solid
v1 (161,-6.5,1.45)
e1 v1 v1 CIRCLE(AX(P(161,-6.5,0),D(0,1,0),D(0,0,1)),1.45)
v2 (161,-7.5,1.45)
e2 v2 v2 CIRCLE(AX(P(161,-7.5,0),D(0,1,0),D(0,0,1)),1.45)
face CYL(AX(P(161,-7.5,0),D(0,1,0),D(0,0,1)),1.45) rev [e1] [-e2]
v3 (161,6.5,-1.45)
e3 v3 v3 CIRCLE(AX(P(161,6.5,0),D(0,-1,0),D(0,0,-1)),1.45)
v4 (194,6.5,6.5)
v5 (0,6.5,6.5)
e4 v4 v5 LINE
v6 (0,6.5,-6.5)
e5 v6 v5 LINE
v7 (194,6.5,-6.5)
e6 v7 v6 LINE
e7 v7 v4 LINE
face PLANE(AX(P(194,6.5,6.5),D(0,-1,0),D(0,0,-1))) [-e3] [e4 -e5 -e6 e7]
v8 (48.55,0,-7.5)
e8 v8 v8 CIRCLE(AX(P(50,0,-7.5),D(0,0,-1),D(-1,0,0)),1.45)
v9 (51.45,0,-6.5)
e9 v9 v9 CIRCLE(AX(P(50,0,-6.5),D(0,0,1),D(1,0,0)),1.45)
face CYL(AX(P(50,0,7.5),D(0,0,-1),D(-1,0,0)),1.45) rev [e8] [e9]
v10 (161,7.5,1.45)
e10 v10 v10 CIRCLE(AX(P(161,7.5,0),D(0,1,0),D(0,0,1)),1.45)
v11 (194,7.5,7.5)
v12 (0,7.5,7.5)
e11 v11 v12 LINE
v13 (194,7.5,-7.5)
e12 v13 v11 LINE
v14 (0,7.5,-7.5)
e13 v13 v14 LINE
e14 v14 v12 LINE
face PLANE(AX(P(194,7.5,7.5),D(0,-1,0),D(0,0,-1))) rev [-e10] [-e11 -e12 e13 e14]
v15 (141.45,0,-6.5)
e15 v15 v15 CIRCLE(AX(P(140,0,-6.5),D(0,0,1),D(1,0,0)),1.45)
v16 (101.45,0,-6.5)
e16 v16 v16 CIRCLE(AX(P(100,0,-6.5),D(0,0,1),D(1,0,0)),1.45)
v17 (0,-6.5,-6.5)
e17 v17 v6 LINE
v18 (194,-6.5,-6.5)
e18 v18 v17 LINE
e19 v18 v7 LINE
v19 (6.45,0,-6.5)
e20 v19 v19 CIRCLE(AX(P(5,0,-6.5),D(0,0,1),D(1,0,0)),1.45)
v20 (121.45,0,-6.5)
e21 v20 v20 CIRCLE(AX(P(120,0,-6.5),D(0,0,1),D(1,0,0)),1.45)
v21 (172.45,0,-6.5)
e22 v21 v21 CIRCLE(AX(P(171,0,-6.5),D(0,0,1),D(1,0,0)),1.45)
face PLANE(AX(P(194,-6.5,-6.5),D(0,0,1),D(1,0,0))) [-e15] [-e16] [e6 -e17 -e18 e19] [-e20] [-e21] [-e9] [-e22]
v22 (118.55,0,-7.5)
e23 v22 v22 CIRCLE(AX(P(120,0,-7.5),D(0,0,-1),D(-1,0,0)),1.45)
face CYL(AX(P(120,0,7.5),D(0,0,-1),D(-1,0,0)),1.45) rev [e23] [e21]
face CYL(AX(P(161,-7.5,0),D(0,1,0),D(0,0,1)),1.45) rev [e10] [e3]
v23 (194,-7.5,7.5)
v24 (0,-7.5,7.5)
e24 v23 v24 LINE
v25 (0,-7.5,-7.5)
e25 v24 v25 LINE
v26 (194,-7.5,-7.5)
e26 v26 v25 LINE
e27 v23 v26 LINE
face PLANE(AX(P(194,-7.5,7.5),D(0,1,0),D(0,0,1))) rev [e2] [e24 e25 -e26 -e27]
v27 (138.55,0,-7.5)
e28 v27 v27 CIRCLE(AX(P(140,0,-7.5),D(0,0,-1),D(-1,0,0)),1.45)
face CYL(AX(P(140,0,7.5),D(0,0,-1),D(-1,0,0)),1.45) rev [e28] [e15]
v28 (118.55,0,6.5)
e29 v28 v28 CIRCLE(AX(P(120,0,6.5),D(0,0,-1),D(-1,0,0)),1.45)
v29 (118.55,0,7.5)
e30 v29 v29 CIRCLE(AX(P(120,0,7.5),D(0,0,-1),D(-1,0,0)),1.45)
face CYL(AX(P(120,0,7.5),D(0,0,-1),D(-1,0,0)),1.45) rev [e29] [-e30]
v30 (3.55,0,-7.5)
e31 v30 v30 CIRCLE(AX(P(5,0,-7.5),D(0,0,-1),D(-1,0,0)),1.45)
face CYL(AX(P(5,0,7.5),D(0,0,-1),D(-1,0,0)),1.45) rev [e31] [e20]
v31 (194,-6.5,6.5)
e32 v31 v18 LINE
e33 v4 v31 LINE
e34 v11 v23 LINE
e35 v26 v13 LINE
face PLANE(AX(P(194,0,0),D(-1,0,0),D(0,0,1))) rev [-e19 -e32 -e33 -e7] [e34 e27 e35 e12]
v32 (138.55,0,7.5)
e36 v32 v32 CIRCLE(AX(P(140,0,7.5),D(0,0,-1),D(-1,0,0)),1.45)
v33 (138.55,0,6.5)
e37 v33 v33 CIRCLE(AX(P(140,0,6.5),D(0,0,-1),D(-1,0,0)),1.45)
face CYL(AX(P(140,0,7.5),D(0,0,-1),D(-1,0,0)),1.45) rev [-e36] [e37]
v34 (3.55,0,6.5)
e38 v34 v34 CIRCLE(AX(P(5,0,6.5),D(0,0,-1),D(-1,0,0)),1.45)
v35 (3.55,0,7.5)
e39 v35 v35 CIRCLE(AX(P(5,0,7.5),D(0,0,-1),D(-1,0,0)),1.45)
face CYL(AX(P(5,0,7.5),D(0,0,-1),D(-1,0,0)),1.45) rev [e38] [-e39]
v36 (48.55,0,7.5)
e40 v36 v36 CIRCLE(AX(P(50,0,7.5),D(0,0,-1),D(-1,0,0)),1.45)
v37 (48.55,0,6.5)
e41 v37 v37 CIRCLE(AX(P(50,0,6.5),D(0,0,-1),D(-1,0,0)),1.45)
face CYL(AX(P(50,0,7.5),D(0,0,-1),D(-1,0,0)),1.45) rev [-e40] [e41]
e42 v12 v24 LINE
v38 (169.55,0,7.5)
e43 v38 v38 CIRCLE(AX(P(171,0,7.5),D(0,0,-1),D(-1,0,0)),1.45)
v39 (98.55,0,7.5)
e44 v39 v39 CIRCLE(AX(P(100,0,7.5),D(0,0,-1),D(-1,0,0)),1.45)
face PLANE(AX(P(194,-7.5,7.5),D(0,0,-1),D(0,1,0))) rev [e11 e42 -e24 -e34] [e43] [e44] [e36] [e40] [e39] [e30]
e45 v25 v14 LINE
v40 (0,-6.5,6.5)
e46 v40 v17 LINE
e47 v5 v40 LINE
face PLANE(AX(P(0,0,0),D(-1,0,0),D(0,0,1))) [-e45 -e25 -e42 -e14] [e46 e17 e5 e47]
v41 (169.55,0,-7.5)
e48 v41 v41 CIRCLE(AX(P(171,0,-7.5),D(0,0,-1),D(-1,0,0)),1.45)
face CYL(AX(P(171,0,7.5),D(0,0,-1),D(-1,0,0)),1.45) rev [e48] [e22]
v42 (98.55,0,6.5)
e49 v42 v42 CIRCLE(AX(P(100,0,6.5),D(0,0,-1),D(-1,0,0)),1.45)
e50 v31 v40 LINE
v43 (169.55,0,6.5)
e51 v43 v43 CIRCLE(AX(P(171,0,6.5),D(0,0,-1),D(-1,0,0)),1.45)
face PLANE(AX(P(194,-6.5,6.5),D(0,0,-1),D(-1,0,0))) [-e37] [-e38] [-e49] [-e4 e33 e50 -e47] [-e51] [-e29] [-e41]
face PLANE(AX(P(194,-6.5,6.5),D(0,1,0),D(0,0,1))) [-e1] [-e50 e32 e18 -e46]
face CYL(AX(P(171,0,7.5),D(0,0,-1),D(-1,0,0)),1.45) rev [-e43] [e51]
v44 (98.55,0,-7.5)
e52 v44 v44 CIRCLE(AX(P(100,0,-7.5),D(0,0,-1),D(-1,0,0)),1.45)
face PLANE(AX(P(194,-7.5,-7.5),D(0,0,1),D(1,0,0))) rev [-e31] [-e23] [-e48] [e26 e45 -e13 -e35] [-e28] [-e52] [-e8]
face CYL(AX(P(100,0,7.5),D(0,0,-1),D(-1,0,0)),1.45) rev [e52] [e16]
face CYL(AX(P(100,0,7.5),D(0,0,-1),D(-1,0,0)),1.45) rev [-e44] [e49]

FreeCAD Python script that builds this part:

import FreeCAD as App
import Part
import Sketcher

V = App.Vector
Q = App.Units.Quantity

doc = App.newDocument("Part")
body = doc.addObject("PartDesign::Body", "Body")

# Sketch on YZ plane
sketch1 = body.newObject("Sketcher::SketchObject", "Sketch")
sketch1.AttachmentSupport = (doc.getObject("YZ_Plane"), [""])
sketch1.MapMode = "FlatFace"
sketch1.addGeometry(Part.LineSegment(V(8, 8, 0), V(-8, 8, 0)), False)
sketch1.addGeometry(Part.LineSegment(V(-8, 8, 0), V(-8, -8, 0)), False)
sketch1.addGeometry(Part.LineSegment(V(-8, -8, 0), V(8, -8, 0)), False)
sketch1.addGeometry(Part.LineSegment(V(8, -8, 0), V(8, 8, 0)), False)
sketch1.addGeometry(Part.LineSegment(V(-6, -6, 0), V(-6, 6, 0)), False)
sketch1.addGeometry(Part.LineSegment(V(-6, 6, 0), V(6, 6, 0)), False)
sketch1.addGeometry(Part.LineSegment(V(6, 6, 0), V(6, -6, 0)), False)
sketch1.addGeometry(Part.LineSegment(V(6, -6, 0), V(-6, -6, 0)), False)
sketch1.addConstraint(Sketcher.Constraint("Coincident", 0, 2, 1, 1))
sketch1.addConstraint(Sketcher.Constraint("Coincident", 1, 2, 2, 1))
sketch1.addConstraint(Sketcher.Constraint("Coincident", 2, 2, 3, 1))
sketch1.addConstraint(Sketcher.Constraint("Coincident", 3, 2, 0, 1))
sketch1.addConstraint(Sketcher.Constraint("Coincident", 4, 2, 5, 1))
sketch1.addConstraint(Sketcher.Constraint("Coincident", 5, 2, 6, 1))
sketch1.addConstraint(Sketcher.Constraint("Coincident", 6, 2, 7, 1))
sketch1.addConstraint(Sketcher.Constraint("Coincident", 7, 2, 4, 1))
sketch1.addConstraint(Sketcher.Constraint("Horizontal", 0))
sketch1.addConstraint(Sketcher.Constraint("Vertical", 1))
sketch1.addConstraint(Sketcher.Constraint("Horizontal", 2))
sketch1.addConstraint(Sketcher.Constraint("Vertical", 3))
sketch1.addConstraint(Sketcher.Constraint("Vertical", 4))
sketch1.addConstraint(Sketcher.Constraint("Horizontal", 5))
sketch1.addConstraint(Sketcher.Constraint("Vertical", 6))
sketch1.addConstraint(Sketcher.Constraint("Horizontal", 7))
sketch1.addConstraint(Sketcher.Constraint("Symmetric", 0, 2, 2, 2, -1, 1))
sketch1.addConstraint(Sketcher.Constraint("Symmetric", 4, 2, 6, 2, -1, 1))
sketch1.addConstraint(Sketcher.Constraint("Equal", 2, 1))
sketch1.addConstraint(Sketcher.Constraint("Equal", 7, 4))
sketch1.addConstraint(Sketcher.Constraint("DistanceX", 0, 2, 0, 1, Q("15 mm")))
sketch1.addConstraint(Sketcher.Constraint("DistanceX", 5, 1, 5, 2, Q("13 mm")))
pad1 = body.newObject("PartDesign::Pad", "Pad")
pad1.Profile = sketch1
pad1.Length = 194

# Sketch on XY plane
sketch2 = body.newObject("Sketcher::SketchObject", "Sketch001")
sketch2.AttachmentSupport = (doc.getObject("XY_Plane"), [""])
sketch2.MapMode = "FlatFace"
sketch2.AttachmentOffset = App.Placement(V(0, 0, -7.5), App.Rotation())
sketch2.addGeometry(Part.Circle(V(5, 0, 0), V(0, 0, 1), 1.4), False)
sketch2.addGeometry(Part.Circle(V(50, 0, 0), V(0, 0, 1), 1.4), False)
sketch2.addConstraint(Sketcher.Constraint("Equal", 0, 1))
sketch2.addConstraint(Sketcher.Constraint("PointOnObject", 0, 3, -1))
sketch2.addConstraint(Sketcher.Constraint("PointOnObject", 1, 3, -1))
sketch2.addConstraint(Sketcher.Constraint("Diameter", 0, Q("2.9 mm")))
sketch2.addConstraint(Sketcher.Constraint("DistanceX", -1, 1, 0, 3, Q("5 mm")))
sketch2.addConstraint(Sketcher.Constraint("DistanceX", -1, 1, 1, 3, Q("50 mm")))
pocket1 = body.newObject("PartDesign::Pocket", "Pocket")
pocket1.Profile = sketch2
pocket1.Type = "ThroughAll"
pocket1.Reversed = True

# Sketch on XY plane
sketch3 = body.newObject("Sketcher::SketchObject", "Sketch002")
sketch3.AttachmentSupport = (doc.getObject("XY_Plane"), [""])
sketch3.MapMode = "FlatFace"
sketch3.AttachmentOffset = App.Placement(V(0, 0, -7.5), App.Rotation())
sketch3.addGeometry(Part.Circle(V(171, 0, 0), V(0, 0, 1), 1.4), False)
sketch3.addConstraint(Sketcher.Constraint("PointOnObject", 0, 3, -1))
sketch3.addConstraint(Sketcher.Constraint("Diameter", 0, Q("2.9 mm")))
sketch3.addConstraint(Sketcher.Constraint("DistanceX", -1, 1, 0, 3, Q("171 mm")))
pocket2 = body.newObject("PartDesign::Pocket", "Pocket001")
pocket2.Profile = sketch3
pocket2.Type = "ThroughAll"
pocket2.Reversed = True

# Sketch on XZ plane
sketch4 = body.newObject("Sketcher::SketchObject", "Sketch003")
sketch4.AttachmentSupport = (doc.getObject("XZ_Plane"), [""])
sketch4.MapMode = "FlatFace"
sketch4.AttachmentOffset = App.Placement(V(0, 0, -7.5), App.Rotation())
sketch4.addGeometry(Part.Circle(V(161, 0, 0), V(0, 0, 1), 1.4), False)
sketch4.addConstraint(Sketcher.Constraint("PointOnObject", 0, 3, -1))
sketch4.addConstraint(Sketcher.Constraint("Diameter", 0, Q("2.9 mm")))
sketch4.addConstraint(Sketcher.Constraint("DistanceX", -1, 1, 0, 3, Q("161 mm")))
pocket3 = body.newObject("PartDesign::Pocket", "Pocket002")
pocket3.Profile = sketch4
pocket3.Type = "ThroughAll"
pocket3.Reversed = True

# Sketch on XY plane
sketch5 = body.newObject("Sketcher::SketchObject", "Sketch004")
sketch5.AttachmentSupport = (doc.getObject("XY_Plane"), [""])
sketch5.MapMode = "FlatFace"
sketch5.AttachmentOffset = App.Placement(V(0, 0, -7.5), App.Rotation())
sketch5.addGeometry(Part.Circle(V(120, 0, 0), V(0, 0, 1), 1.4), False)
sketch5.addGeometry(Part.Circle(V(140, 0, 0), V(0, 0, 1), 1.4), False)
sketch5.addGeometry(Part.Circle(V(100, 0, 0), V(0, 0, 1), 1.4), False)
sketch5.addConstraint(Sketcher.Constraint("Equal", 0, 1))
sketch5.addConstraint(Sketcher.Constraint("Equal", 1, 2))
sketch5.addConstraint(Sketcher.Constraint("PointOnObject", 0, 3, -1))
sketch5.addConstraint(Sketcher.Constraint("PointOnObject", 1, 3, -1))
sketch5.addConstraint(Sketcher.Constraint("PointOnObject", 2, 3, -1))
sketch5.addConstraint(Sketcher.Constraint("Diameter", 0, Q("2.9 mm")))
sketch5.addConstraint(Sketcher.Constraint("DistanceX", -1, 1, 0, 3, Q("120 mm")))
sketch5.addConstraint(Sketcher.Constraint("DistanceX", -1, 1, 1, 3, Q("140 mm")))
sketch5.addConstraint(Sketcher.Constraint("DistanceX", -1, 1, 2, 3, Q("100 mm")))
pocket4 = body.newObject("PartDesign::Pocket", "Pocket003")
pocket4.Profile = sketch5
pocket4.Type = "ThroughAll"
pocket4.Reversed = True

doc.recompute()
